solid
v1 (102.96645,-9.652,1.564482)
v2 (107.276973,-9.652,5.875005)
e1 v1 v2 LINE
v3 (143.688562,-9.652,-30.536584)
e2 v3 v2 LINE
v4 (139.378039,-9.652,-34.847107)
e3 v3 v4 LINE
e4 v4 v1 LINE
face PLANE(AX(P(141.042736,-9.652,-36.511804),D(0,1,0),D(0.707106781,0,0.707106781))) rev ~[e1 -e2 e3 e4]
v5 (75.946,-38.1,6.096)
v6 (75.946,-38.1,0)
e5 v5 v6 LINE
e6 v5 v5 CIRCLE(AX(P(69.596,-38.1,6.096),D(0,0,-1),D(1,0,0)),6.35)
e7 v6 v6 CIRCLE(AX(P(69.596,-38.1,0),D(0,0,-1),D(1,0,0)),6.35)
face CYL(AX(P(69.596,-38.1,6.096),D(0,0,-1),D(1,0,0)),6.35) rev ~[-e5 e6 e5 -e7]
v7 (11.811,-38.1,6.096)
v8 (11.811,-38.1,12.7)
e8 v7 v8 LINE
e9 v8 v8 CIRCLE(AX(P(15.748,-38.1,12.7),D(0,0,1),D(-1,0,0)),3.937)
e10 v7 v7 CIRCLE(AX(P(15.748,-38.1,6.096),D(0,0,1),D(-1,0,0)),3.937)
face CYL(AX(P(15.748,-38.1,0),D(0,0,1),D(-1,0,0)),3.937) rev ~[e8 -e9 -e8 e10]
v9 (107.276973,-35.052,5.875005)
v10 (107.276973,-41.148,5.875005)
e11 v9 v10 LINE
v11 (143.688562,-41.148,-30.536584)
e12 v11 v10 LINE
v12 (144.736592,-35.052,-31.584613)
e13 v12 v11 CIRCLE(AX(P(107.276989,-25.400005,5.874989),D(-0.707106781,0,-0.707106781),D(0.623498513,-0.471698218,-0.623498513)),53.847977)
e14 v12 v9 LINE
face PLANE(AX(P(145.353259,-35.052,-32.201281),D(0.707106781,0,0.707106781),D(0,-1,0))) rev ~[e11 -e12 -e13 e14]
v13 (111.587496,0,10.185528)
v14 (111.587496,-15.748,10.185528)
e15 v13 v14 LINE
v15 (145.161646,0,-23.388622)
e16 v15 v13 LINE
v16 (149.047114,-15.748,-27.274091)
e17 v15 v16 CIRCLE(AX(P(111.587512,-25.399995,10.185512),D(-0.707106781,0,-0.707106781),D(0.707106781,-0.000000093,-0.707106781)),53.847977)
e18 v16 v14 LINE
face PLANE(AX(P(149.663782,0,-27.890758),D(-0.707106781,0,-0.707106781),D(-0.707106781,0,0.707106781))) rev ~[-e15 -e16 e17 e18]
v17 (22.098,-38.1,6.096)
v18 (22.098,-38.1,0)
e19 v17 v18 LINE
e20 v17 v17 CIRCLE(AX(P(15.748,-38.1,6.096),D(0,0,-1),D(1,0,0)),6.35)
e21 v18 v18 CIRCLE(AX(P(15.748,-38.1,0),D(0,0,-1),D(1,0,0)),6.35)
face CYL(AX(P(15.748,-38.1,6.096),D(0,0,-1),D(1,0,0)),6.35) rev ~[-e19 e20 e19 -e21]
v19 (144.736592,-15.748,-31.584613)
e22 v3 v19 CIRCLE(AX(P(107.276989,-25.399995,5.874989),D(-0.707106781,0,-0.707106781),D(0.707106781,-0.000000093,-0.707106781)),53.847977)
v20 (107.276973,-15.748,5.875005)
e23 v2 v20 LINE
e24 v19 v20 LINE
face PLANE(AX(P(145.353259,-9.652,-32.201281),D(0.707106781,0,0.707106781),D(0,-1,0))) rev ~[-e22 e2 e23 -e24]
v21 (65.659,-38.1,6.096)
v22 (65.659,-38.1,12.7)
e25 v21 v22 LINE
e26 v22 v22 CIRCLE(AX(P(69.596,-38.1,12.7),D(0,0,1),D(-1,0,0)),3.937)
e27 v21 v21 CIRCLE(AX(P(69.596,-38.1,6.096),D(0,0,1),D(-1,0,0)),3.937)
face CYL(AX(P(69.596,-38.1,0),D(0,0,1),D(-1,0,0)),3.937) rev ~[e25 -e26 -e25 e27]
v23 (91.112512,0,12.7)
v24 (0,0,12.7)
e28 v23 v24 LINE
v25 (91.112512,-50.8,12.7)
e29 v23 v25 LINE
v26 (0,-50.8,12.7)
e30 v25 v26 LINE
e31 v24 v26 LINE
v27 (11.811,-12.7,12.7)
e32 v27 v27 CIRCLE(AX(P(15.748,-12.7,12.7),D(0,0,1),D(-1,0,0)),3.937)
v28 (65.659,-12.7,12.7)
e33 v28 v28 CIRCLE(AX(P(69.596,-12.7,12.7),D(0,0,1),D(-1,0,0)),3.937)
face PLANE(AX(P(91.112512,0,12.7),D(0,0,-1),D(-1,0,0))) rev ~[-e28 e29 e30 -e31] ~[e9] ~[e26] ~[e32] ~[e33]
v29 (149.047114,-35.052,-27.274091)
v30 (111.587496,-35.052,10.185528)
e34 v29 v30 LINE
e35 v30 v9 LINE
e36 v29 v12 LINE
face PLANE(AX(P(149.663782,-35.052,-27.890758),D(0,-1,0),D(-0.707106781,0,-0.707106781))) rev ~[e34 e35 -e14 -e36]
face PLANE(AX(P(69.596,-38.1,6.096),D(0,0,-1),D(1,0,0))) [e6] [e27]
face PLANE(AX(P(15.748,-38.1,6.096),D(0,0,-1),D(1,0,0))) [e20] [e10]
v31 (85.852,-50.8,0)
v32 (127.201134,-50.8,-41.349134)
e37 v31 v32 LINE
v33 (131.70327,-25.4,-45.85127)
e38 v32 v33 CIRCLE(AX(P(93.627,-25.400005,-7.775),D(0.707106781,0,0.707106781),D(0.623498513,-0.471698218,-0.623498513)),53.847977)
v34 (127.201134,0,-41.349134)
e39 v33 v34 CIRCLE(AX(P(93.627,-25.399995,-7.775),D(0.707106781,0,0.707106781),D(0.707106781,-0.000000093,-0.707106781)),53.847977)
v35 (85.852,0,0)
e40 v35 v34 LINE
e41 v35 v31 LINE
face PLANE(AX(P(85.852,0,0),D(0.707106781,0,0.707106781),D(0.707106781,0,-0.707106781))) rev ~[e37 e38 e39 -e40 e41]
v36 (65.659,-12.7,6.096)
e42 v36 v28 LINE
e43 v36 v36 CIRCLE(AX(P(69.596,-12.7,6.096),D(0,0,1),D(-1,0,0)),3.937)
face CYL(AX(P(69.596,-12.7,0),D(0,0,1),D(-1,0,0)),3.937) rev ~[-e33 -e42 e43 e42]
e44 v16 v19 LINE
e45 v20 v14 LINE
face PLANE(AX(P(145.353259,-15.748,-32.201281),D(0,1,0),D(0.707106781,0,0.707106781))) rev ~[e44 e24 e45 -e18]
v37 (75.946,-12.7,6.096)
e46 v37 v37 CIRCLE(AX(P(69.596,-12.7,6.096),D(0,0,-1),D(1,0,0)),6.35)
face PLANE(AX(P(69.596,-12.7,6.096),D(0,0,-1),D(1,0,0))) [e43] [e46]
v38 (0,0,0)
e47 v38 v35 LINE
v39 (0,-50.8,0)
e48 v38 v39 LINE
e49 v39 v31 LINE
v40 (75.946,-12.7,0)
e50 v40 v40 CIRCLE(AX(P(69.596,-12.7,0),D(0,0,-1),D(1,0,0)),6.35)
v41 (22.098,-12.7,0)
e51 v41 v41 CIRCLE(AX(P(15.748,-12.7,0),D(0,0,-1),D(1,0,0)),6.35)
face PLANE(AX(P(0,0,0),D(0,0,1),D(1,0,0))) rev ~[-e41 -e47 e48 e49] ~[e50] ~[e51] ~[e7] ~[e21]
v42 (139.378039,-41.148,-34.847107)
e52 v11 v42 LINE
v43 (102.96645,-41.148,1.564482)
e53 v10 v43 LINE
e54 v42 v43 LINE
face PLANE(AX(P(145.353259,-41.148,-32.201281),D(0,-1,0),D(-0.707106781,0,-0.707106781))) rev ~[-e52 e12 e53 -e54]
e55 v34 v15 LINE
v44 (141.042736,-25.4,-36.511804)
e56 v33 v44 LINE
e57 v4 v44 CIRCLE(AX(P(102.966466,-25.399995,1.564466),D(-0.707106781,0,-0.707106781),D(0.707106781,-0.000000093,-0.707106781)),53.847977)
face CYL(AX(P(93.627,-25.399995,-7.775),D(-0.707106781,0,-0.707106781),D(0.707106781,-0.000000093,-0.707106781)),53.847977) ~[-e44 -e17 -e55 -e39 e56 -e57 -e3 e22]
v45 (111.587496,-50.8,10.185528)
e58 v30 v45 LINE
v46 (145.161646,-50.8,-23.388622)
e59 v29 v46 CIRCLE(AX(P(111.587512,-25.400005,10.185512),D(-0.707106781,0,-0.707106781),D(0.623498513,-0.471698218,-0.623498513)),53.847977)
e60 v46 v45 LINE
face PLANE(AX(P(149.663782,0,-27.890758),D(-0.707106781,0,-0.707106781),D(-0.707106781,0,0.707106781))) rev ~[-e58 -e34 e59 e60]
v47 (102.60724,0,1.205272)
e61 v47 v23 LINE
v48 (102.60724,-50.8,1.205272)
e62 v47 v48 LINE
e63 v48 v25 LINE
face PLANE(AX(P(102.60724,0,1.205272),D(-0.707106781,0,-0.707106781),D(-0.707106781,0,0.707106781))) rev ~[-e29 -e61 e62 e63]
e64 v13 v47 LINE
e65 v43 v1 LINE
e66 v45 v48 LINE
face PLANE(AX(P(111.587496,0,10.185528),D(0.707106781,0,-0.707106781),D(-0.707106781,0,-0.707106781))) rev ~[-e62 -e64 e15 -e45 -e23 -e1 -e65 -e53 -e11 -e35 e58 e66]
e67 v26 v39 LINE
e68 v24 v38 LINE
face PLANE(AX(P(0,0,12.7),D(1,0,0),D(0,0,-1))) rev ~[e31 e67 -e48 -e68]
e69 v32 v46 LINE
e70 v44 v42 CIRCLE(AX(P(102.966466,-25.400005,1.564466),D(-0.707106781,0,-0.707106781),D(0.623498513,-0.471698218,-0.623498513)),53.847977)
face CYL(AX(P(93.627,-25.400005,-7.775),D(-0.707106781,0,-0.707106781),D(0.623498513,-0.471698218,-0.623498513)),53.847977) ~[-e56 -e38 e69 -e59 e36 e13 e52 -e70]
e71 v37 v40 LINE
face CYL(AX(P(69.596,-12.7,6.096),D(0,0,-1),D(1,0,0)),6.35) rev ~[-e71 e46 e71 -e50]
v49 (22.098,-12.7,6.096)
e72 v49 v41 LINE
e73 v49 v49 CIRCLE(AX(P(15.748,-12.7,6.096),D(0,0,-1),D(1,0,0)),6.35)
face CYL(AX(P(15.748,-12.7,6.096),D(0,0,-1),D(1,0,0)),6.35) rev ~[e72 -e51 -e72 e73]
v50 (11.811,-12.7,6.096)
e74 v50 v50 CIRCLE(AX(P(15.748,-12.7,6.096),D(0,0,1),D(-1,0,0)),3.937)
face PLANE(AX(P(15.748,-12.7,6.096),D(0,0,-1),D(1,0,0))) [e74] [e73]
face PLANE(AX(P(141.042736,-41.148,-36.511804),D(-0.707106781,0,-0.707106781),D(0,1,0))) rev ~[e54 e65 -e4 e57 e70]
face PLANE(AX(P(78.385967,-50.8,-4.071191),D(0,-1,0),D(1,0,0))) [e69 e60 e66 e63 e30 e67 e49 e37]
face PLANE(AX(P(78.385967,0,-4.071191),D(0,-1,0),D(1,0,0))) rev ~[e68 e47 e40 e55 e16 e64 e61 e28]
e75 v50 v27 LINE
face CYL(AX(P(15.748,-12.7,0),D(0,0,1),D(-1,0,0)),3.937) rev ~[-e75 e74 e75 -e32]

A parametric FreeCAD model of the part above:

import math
import FreeCAD as App
import Part
import Sketcher
Q = App.Units.Quantity

doc = App.newDocument("Part")
body = doc.addObject("PartDesign::Body", "Body")

# Sketch on XZ plane
sketch1 = body.newObject("Sketcher::SketchObject", "Sketch")
sketch1.AttachmentSupport = (doc.getObject("XZ_Plane"), [""])
sketch1.MapMode = "FlatFace"
sketch1.addGeometry(Part.LineSegment(App.Vector(0, 13, 0), App.Vector(0, 0, 0)), False)
sketch1.addGeometry(Part.LineSegment(App.Vector(0, 0, 0), App.Vector(86, 0, 0)), False)
sketch1.addGeometry(Part.LineSegment(App.Vector(86, 0, 0), App.Vector(132, -46, 0)), False)
sketch1.addGeometry(Part.LineSegment(App.Vector(132, -46, 0), App.Vector(150, -28, 0)), False)
sketch1.addGeometry(Part.LineSegment(App.Vector(150, -28, 0), App.Vector(112, 10, 0)), False)
sketch1.addGeometry(Part.LineSegment(App.Vector(112, 10, 0), App.Vector(103, 1, 0)), False)
sketch1.addGeometry(Part.LineSegment(App.Vector(103, 1, 0), App.Vector(91, 13, 0)), False)
sketch1.addGeometry(Part.LineSegment(App.Vector(91, 13, 0), App.Vector(0, 13, 0)), False)
sketch1.addConstraint(Sketcher.Constraint("Coincident", 0, 2, 1, 1))
sketch1.addConstraint(Sketcher.Constraint("Coincident", 1, 2, 2, 1))
sketch1.addConstraint(Sketcher.Constraint("Coincident", 2, 2, 3, 1))
sketch1.addConstraint(Sketcher.Constraint("Coincident", 3, 2, 4, 1))
sketch1.addConstraint(Sketcher.Constraint("Coincident", 4, 2, 5, 1))
sketch1.addConstraint(Sketcher.Constraint("Coincident", 5, 2, 6, 1))
sketch1.addConstraint(Sketcher.Constraint("Coincident", 6, 2, 7, 1))
sketch1.addConstraint(Sketcher.Constraint("Coincident", 7, 2, 0, 1))
sketch1.addConstraint(Sketcher.Constraint("Vertical", 0))
sketch1.addConstraint(Sketcher.Constraint("Horizontal", 1))
sketch1.addConstraint(Sketcher.Constraint("Horizontal", 7))
sketch1.addConstraint(Sketcher.Constraint("Coincident", 0, 2, -1, 1))
sketch1.addConstraint(Sketcher.Constraint("Perpendicular", 2, 3))
sketch1.addConstraint(Sketcher.Constraint("Perpendicular", 3, 4))
sketch1.addConstraint(Sketcher.Constraint("Perpendicular", 4, 5))
sketch1.addConstraint(Sketcher.Constraint("Perpendicular", 5, 6))
sketch1.addConstraint(Sketcher.Constraint("Distance", 3, Q("1 in")))
sketch1.addConstraint(Sketcher.Constraint("DistanceY", 0, 2, 0, 1, Q("0.5 in")))
sketch1.addConstraint(Sketcher.Constraint("Angle", 2, Q("-45 deg")))
sketch1.addConstraint(Sketcher.Constraint("Distance", 5, Q("0.5 in")))
sketch1.addConstraint(Sketcher.Constraint("DistanceX", 1, 1, 1, 2, Q("3.38 in")))
sketch1.addConstraint(Sketcher.Constraint("Distance", 4, Q("2.12 in")))
sketch1.addConstraint(Sketcher.Constraint("Distance", 6, Q("0.64 in")))
pad1 = body.newObject("PartDesign::Pad", "Pad")
pad1.Profile = sketch1
pad1.Length = Q("2 in")

# Sketch on XY plane
sketch2 = body.newObject("Sketcher::SketchObject", "Sketch001")
sketch2.AttachmentSupport = (doc.getObject("XY_Plane"), [""])
sketch2.MapMode = "FlatFace"
sketch2.addGeometry(Part.Circle(App.Vector(15.7, -38.1, 0), App.Vector(0, 0, 1), 3.9), False)
sketch2.addGeometry(Part.Circle(App.Vector(69.6, -38.1, 0), App.Vector(0, 0, 1), 3.9), False)
sketch2.addGeometry(Part.Circle(App.Vector(69.6, -12.7, 0), App.Vector(0, 0, 1), 3.9), False)
sketch2.addGeometry(Part.Circle(App.Vector(15.7, -12.7, 0), App.Vector(0, 0, 1), 3.9), False)
sketch2.addConstraint(Sketcher.Constraint("Equal", 0, 1))
sketch2.addConstraint(Sketcher.Constraint("Equal", 1, 2))
sketch2.addConstraint(Sketcher.Constraint("Equal", 2, 3))
sketch2.addConstraint(Sketcher.Constraint("Horizontal", 0, 3, 1, 3))
sketch2.addConstraint(Sketcher.Constraint("Horizontal", 2, 3, 3, 3))
sketch2.addConstraint(Sketcher.Constraint("Vertical", 1, 3, 2, 3))
sketch2.addConstraint(Sketcher.Constraint("Vertical", 0, 3, 3, 3))
sketch2.addConstraint(Sketcher.Constraint("Diameter", 0, Q("0.31 in")))
sketch2.addConstraint(Sketcher.Constraint("DistanceY", 1, 3, 2, 3, Q("1 in")))
sketch2.addConstraint(Sketcher.Constraint("DistanceY", 0, 3, -1, 1, Q("1.5 in")))
sketch2.addConstraint(Sketcher.Constraint("DistanceX", -1, 1, 0, 3, Q("0.62 in")))
sketch2.addConstraint(Sketcher.Constraint("DistanceX", -1, 1, 1, 3, Q("2.74 in")))
doc.recompute()
hole = body.newObject("PartDesign::Hole", "Hole")
hole.Profile = sketch2
hole.ThreadType = "None"
hole.Diameter = Q("0.31 in")
hole.DepthType = "ThroughAll"
hole.HoleCutType = "Counterbore"
hole.HoleCutDiameter = Q("0.5 in")
hole.HoleCutDepth = Q("0.24 in")
hole.Reversed = True

# Sketch on an angled plane
sketch3 = body.newObject("Sketcher::SketchObject", "Sketch002")
sketch3.Placement = App.Placement(App.Vector(88.77727, 0, -88.77727), App.Rotation(App.Vector(0, 1, 0), App.Vector(0.707106781, 0, 0.707106781), App.Vector(0.707106781, 0, -0.707106781), "ZXY"))
sketch3.addGeometry(Part.LineSegment(App.Vector(-16, 86, 0), App.Vector(-35, 86, 0)), False)
sketch3.addGeometry(Part.LineSegment(App.Vector(-35, 86, 0), App.Vector(-35, 80, 0)), False)
sketch3.addGeometry(Part.LineSegment(App.Vector(-35, 80, 0), App.Vector(-41, 80, 0)), False)
sketch3.addGeometry(Part.LineSegment(App.Vector(-41, 80, 0), App.Vector(-41, 74, 0)), False)
sketch3.addGeometry(Part.LineSegment(App.Vector(-41, 74, 0), App.Vector(-10, 74, 0)), False)
sketch3.addGeometry(Part.LineSegment(App.Vector(-10, 74, 0), App.Vector(-10, 80, 0)), False)
sketch3.addGeometry(Part.LineSegment(App.Vector(-10, 80, 0), App.Vector(-16, 80, 0)), False)
sketch3.addGeometry(Part.LineSegment(App.Vector(-16, 80, 0), App.Vector(-16, 86, 0)), False)
sketch3.addConstraint(Sketcher.Constraint("Coincident", 0, 2, 1, 1))
sketch3.addConstraint(Sketcher.Constraint("Coincident", 1, 2, 2, 1))
sketch3.addConstraint(Sketcher.Constraint("Coincident", 2, 2, 3, 1))
sketch3.addConstraint(Sketcher.Constraint("Coincident", 3, 2, 4, 1))
sketch3.addConstraint(Sketcher.Constraint("Coincident", 4, 2, 5, 1))
sketch3.addConstraint(Sketcher.Constraint("Coincident", 5, 2, 6, 1))
sketch3.addConstraint(Sketcher.Constraint("Coincident", 6, 2, 7, 1))
sketch3.addConstraint(Sketcher.Constraint("Coincident", 7, 2, 0, 1))
sketch3.addConstraint(Sketcher.Constraint("Horizontal", 0))
sketch3.addConstraint(Sketcher.Constraint("Vertical", 1))
sketch3.addConstraint(Sketcher.Constraint("Horizontal", 2))
sketch3.addConstraint(Sketcher.Constraint("Vertical", 3))
sketch3.addConstraint(Sketcher.Constraint("Horizontal", 4))
sketch3.addConstraint(Sketcher.Constraint("Vertical", 5))
sketch3.addConstraint(Sketcher.Constraint("Horizontal", 6))
sketch3.addConstraint(Sketcher.Constraint("Vertical", 7))
sketch3.addConstraint(Sketcher.Constraint("Horizontal", 2, 2, 5, 2))
sketch3.addConstraint(Sketcher.Constraint("Equal", 2, 6))
sketch3.addConstraint(Sketcher.Constraint("Equal", 6, 1))
sketch3.addConstraint(Sketcher.Constraint("Equal", 1, 3))
sketch3.addConstraint(Sketcher.Constraint("DistanceX", 1, 2, 4, 2, Q("1 in")))
sketch3.addConstraint(Sketcher.Constraint("DistanceX", 0, 2, 0, 1, Q("0.76 in")))
sketch3.addConstraint(Sketcher.Constraint("DistanceX", 0, 2, -1, 1, Q("1.38 in")))
sketch3.addConstraint(Sketcher.Constraint("DistanceY", -1, 1, 0, 2, 86.106531))
pocket1 = body.newObject("PartDesign::Pocket", "Pocket")
pocket1.Profile = sketch3
pocket1.Type = "ThroughAll"

# Sketch on an angled plane
sketch4 = body.newObject("Sketcher::SketchObject", "Sketch003")
sketch4.Placement = App.Placement(App.Vector(42.926, 0, 42.926), App.Rotation(App.Vector(0.707106781, 0, -0.707106781), App.Vector(0, -0.999999999, 0), App.Vector(-0.707106781, 0, -0.707106781), "ZXY"))
sketch4.addGeometry(Part.ArcOfCircle(Part.Circle(App.Vector(72, 25, 0), App.Vector(0, 0, 1), 54), math.radians(0), math.radians(28)), False)
sketch4.addGeometry(Part.LineSegment(App.Vector(126, 25, 0), App.Vector(126, 51, 0)), False)
sketch4.addGeometry(Part.LineSegment(App.Vector(126, 51, 0), App.Vector(119, 51, 0)), False)
sketch4.addGeometry(Part.ArcOfCircle(Part.Circle(App.Vector(72, 25, 0), App.Vector(0, 0, 1), 54), math.radians(-28), math.radians(0)), False)
sketch4.addGeometry(Part.LineSegment(App.Vector(119, 0, 0), App.Vector(126, 0, 0)), False)
sketch4.addGeometry(Part.LineSegment(App.Vector(126, 0, 0), App.Vector(126, 25, 0)), False)
sketch4.addConstraint(Sketcher.Constraint("Tangent", 0, 1, 1, 1))
sketch4.addConstraint(Sketcher.Constraint("Coincident", 1, 2, 2, 1))
sketch4.addConstraint(Sketcher.Constraint("Coincident", 2, 2, 0, 2))
sketch4.addConstraint(Sketcher.Constraint("Coincident", 3, 1, 4, 1))
sketch4.addConstraint(Sketcher.Constraint("Coincident", 4, 2, 5, 1))
sketch4.addConstraint(Sketcher.Constraint("Tangent", 5, 2, 3, 2))
sketch4.addConstraint(Sketcher.Constraint("Vertical", 1))
sketch4.addConstraint(Sketcher.Constraint("Horizontal", 2))
sketch4.addConstraint(Sketcher.Constraint("Horizontal", 4))
sketch4.addConstraint(Sketcher.Constraint("Vertical", 5))
sketch4.addConstraint(Sketcher.Constraint("Coincident", 3, 3, 0, 3))
sketch4.addConstraint(Sketcher.Constraint("Equal", 0, 3))
sketch4.addConstraint(Sketcher.Constraint("PointOnObject", 3, 1, -1))
sketch4.addConstraint(Sketcher.Constraint("Vertical", 2, 2, 3, 1))
sketch4.addConstraint(Sketcher.Constraint("DistanceY", 1, 1, 1, 2, Q("1 in")))
sketch4.addConstraint(Sketcher.Constraint("Radius", 0, 53.847977))
sketch4.addConstraint(Sketcher.Constraint("DistanceX", -1, 1, 0, 3, 71.702042))
pocket2 = body.newObject("PartDesign::Pocket", "Pocket001")
pocket2.Profile = sketch4
pocket2.Type = "ThroughAll"

doc.recompute()
